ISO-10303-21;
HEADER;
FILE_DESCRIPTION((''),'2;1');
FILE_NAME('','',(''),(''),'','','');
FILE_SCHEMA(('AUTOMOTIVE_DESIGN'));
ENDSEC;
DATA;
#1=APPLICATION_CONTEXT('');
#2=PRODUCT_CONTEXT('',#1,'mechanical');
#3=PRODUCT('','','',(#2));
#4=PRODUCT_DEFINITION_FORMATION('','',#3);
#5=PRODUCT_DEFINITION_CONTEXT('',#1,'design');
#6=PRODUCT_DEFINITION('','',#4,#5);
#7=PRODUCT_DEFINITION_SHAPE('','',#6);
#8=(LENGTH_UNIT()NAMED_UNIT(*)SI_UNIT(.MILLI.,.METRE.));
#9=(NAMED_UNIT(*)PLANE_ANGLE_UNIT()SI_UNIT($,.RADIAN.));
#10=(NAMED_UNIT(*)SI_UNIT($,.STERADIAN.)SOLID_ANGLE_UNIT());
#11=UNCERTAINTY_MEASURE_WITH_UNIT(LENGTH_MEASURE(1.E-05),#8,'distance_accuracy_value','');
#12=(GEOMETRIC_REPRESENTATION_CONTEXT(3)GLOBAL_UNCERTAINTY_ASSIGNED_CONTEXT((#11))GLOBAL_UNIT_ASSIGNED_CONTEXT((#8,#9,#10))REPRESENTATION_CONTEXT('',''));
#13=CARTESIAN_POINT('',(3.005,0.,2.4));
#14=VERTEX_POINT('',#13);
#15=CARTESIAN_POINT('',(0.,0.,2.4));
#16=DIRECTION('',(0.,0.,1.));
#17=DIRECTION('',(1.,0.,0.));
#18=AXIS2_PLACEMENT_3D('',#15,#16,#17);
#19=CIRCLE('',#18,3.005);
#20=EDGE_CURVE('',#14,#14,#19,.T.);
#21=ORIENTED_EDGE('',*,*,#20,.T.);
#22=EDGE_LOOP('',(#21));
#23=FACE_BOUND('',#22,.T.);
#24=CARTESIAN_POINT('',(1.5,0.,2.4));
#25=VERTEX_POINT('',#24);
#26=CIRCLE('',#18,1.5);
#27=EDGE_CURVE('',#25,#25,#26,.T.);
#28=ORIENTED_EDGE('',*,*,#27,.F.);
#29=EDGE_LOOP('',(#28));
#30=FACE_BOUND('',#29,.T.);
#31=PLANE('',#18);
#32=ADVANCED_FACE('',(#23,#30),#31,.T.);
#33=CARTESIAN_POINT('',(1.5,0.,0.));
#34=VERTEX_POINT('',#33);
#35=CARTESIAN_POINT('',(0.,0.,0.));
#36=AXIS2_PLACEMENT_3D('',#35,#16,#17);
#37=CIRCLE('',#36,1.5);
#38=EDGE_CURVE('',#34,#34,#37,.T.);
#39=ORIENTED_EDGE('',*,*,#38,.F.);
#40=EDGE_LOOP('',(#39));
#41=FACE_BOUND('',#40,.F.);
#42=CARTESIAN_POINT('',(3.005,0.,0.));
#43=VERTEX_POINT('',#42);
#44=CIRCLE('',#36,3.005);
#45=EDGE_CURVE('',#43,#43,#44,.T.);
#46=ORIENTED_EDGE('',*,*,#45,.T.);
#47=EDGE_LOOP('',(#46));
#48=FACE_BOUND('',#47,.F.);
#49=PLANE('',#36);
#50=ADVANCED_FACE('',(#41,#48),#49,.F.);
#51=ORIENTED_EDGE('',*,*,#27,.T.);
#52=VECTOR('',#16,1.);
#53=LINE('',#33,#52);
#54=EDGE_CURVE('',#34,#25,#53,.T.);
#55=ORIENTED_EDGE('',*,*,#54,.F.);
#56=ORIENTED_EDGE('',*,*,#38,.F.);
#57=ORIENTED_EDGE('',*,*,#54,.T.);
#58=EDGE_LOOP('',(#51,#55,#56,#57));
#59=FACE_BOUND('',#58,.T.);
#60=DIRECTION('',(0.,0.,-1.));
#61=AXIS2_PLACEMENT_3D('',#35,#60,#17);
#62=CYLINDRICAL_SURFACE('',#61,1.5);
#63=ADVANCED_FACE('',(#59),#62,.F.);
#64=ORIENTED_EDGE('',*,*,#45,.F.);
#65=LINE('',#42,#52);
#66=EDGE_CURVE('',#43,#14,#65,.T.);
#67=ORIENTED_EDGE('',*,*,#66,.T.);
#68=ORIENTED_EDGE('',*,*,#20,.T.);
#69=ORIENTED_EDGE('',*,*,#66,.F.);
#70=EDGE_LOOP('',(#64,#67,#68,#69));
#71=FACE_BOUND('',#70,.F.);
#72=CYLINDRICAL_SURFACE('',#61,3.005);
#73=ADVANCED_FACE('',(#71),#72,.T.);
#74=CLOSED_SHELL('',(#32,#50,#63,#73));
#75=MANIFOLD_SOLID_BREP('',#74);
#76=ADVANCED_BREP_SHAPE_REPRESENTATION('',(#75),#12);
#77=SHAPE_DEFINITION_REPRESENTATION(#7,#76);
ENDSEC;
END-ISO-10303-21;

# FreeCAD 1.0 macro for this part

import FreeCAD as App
import Part
import Sketcher
Q = App.Units.Quantity

doc = App.newDocument("Part")
params = doc.addObject("Spreadsheet::Sheet", "Params")
for row, (alias, value) in enumerate([
    ("sketch1_diameter", "3 mm"),
    ("sketch1_diameter2", "6.01 mm"),
    ("pad1_length", "2.4 mm"),
], start=1):
    params.set(f"A{row}", alias)
    params.set(f"B{row}", "=" + value)
    params.setAlias(f"B{row}", alias)

body = doc.addObject("PartDesign::Body", "Body")

# Sketch on XY plane
sketch1 = doc.addObject("Sketcher::SketchObject", "Sketch")
body.addObject(sketch1)
sketch1.AttachmentSupport = (doc.XY_Plane, [""])
sketch1.MapMode = "FlatFace"
sketch1.addGeometry(Part.Circle(App.Vector(0, 0, 0), App.Vector(0, 0, 1), 3), False)
sketch1.addGeometry(Part.Circle(App.Vector(0, 0, 0), App.Vector(0, 0, 1), 1.5), False)
sketch1.addConstraint(Sketcher.Constraint("Coincident", 0, 3, -1, 1))
sketch1.addConstraint(Sketcher.Constraint("Coincident", 1, 3, -1, 1))
sketch1.addConstraint(Sketcher.Constraint("Diameter", 1, Q("3 mm")))
sketch1.addConstraint(Sketcher.Constraint("Diameter", 0, Q("6.01 mm")))
sketch1.setExpression("Constraints[2]", "Params.sketch1_diameter")
sketch1.setExpression("Constraints[3]", "Params.sketch1_diameter2")
pad1 = doc.addObject("PartDesign::Pad", "Pad")
body.addObject(pad1)
pad1.Profile = sketch1
pad1.setExpression("Length", "Params.pad1_length")

doc.recompute()
